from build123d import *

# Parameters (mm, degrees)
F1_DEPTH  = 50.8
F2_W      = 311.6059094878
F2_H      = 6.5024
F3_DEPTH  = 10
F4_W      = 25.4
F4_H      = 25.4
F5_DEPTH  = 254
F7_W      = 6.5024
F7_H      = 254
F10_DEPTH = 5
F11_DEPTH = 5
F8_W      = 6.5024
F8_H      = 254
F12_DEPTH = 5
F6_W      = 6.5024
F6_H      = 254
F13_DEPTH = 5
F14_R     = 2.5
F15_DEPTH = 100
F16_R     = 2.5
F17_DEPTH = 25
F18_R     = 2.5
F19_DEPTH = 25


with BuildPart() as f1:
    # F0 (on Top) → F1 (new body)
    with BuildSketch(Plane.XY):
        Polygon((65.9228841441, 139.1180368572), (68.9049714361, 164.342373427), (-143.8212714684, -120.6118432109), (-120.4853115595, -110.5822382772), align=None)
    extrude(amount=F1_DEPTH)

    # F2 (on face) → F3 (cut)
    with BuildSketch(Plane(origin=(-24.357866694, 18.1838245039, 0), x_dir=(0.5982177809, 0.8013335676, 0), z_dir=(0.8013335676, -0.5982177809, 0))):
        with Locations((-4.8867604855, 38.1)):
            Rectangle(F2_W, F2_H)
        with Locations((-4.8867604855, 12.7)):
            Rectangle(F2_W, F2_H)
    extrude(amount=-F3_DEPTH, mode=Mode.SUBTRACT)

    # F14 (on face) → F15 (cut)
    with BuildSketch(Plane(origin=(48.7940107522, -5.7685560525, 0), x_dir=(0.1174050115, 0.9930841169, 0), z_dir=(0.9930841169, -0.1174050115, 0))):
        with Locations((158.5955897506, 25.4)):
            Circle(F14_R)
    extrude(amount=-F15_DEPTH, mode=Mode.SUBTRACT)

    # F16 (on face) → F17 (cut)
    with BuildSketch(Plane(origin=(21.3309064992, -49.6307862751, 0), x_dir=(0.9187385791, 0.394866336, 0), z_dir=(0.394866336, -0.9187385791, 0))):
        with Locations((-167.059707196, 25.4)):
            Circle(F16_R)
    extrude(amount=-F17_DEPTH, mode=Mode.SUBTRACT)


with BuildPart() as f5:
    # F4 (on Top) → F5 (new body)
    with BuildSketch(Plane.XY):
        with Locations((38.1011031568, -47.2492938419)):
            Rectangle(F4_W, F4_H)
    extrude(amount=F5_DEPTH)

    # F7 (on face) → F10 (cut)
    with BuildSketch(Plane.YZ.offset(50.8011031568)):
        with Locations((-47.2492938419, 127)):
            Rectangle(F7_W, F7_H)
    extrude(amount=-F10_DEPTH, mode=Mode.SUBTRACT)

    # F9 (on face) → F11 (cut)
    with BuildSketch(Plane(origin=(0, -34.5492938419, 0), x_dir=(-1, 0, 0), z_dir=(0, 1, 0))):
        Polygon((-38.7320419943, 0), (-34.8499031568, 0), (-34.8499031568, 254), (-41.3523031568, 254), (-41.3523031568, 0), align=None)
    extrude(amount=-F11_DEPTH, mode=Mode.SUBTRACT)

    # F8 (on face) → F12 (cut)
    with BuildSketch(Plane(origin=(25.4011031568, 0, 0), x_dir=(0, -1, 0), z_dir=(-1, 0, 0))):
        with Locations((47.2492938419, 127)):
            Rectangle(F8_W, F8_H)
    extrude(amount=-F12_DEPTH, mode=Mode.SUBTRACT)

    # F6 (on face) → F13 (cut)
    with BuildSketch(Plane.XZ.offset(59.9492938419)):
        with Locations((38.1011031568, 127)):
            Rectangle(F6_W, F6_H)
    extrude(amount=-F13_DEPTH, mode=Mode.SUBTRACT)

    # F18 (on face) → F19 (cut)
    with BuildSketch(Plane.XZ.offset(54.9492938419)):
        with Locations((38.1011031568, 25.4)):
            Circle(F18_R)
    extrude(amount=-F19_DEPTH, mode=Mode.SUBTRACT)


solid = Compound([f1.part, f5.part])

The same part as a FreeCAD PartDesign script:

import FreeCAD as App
import Part
import Sketcher
Q = App.Units.Quantity

doc = App.newDocument("Part")
body = doc.addObject("PartDesign::Body", "Body")

# Sketch on XY plane
sketch1 = doc.addObject("Sketcher::SketchObject", "Sketch")
body.addObject(sketch1)
sketch1.AttachmentSupport = (doc.XY_Plane, [""])
sketch1.MapMode = "FlatFace"
sketch1.addGeometry(Part.LineSegment(App.Vector(66, 139, 0), App.Vector(69, 164, 0)), False)
sketch1.addGeometry(Part.LineSegment(App.Vector(69, 164, 0), App.Vector(-144, -121, 0)), False)
sketch1.addGeometry(Part.LineSegment(App.Vector(-144, -121, 0), App.Vector(-120, -111, 0)), False)
sketch1.addGeometry(Part.LineSegment(App.Vector(-120, -111, 0), App.Vector(66, 139, 0)), False)
sketch1.addConstraint(Sketcher.Constraint("Coincident", 0, 2, 1, 1))
sketch1.addConstraint(Sketcher.Constraint("Coincident", 1, 2, 2, 1))
sketch1.addConstraint(Sketcher.Constraint("Coincident", 2, 2, 3, 1))
sketch1.addConstraint(Sketcher.Constraint("Coincident", 3, 2, 0, 1))
sketch1.addConstraint(Sketcher.Constraint("Parallel", 1, 3))
sketch1.addConstraint(Sketcher.Constraint("Equal", 0, 2))
sketch1.addConstraint(Sketcher.Constraint("Distance", 0, Q("1 in")))
sketch1.addConstraint(Sketcher.Constraint("Distance", 1, Q("14 in")))
sketch1.addConstraint(Sketcher.Constraint("Distance", 3, 311.605909))
sketch1.addConstraint(Sketcher.Constraint("DistanceX", -1, 1, 0, 2, 68.904971))
sketch1.addConstraint(Sketcher.Constraint("DistanceX", 1, 2, -1, 1, 143.821271))
sketch1.addConstraint(Sketcher.Constraint("DistanceY", 2, 2, -1, 1, 110.582238))
pad1 = doc.addObject("PartDesign::Pad", "Pad")
body.addObject(pad1)
pad1.Profile = sketch1
pad1.Length = Q("2 in")

# Sketch on an angled plane
sketch2 = doc.addObject("Sketcher::SketchObject", "Sketch001")
body.addObject(sketch2)
sketch2.Placement = App.Placement(App.Vector(-24.357867, 18.183825, 0), App.Rotation(App.Vector(0.598217781, 0.801333568, 0), App.Vector(0, 0, 1.000000001), App.Vector(0.801333568, -0.598217781, 0), "ZXY"))
sketch2.addGeometry(Part.LineSegment(App.Vector(-161, 41, 0), App.Vector(-161, 35, 0)), False)
sketch2.addGeometry(Part.LineSegment(App.Vector(-161, 35, 0), App.Vector(151, 35, 0)), False)
sketch2.addGeometry(Part.LineSegment(App.Vector(151, 35, 0), App.Vector(151, 41, 0)), False)
sketch2.addGeometry(Part.LineSegment(App.Vector(151, 41, 0), App.Vector(-161, 41, 0)), False)
sketch2.addGeometry(Part.LineSegment(App.Vector(-161, 16, 0), App.Vector(-161, 9, 0)), False)
sketch2.addGeometry(Part.LineSegment(App.Vector(-161, 9, 0), App.Vector(151, 9, 0)), False)
sketch2.addGeometry(Part.LineSegment(App.Vector(151, 9, 0), App.Vector(151, 16, 0)), False)
sketch2.addGeometry(Part.LineSegment(App.Vector(151, 16, 0), App.Vector(-161, 16, 0)), False)
sketch2.addConstraint(Sketcher.Constraint("Coincident", 0, 2, 1, 1))
sketch2.addConstraint(Sketcher.Constraint("Coincident", 1, 2, 2, 1))
sketch2.addConstraint(Sketcher.Constraint("Coincident", 2, 2, 3, 1))
sketch2.addConstraint(Sketcher.Constraint("Coincident", 3, 2, 0, 1))
sketch2.addConstraint(Sketcher.Constraint("Coincident", 4, 2, 5, 1))
sketch2.addConstraint(Sketcher.Constraint("Coincident", 5, 2, 6, 1))
sketch2.addConstraint(Sketcher.Constraint("Coincident", 6, 2, 7, 1))
sketch2.addConstraint(Sketcher.Constraint("Coincident", 7, 2, 4, 1))
sketch2.addConstraint(Sketcher.Constraint("Vertical", 0))
sketch2.addConstraint(Sketcher.Constraint("Horizontal", 1))
sketch2.addConstraint(Sketcher.Constraint("Vertical", 2))
sketch2.addConstraint(Sketcher.Constraint("Horizontal", 3))
sketch2.addConstraint(Sketcher.Constraint("Vertical", 4))
sketch2.addConstraint(Sketcher.Constraint("Horizontal", 5))
sketch2.addConstraint(Sketcher.Constraint("Vertical", 6))
sketch2.addConstraint(Sketcher.Constraint("Horizontal", 7))
sketch2.addConstraint(Sketcher.Constraint("Vertical", 3, 2, 4, 2))
sketch2.addConstraint(Sketcher.Constraint("Vertical", 2, 2, 5, 2))
sketch2.addConstraint(Sketcher.Constraint("Equal", 2, 4))
sketch2.addConstraint(Sketcher.Constraint("DistanceY", 4, 2, 0, 2, Q("1 in")))
sketch2.addConstraint(Sketcher.Constraint("DistanceY", 0, 2, 0, 1, Q("0.256 in")))
sketch2.addConstraint(Sketcher.Constraint("DistanceY", -1, 1, 0, 2, Q("1.372 in")))
sketch2.addConstraint(Sketcher.Constraint("DistanceX", 1, 1, 1, 2, 311.60591))
sketch2.addConstraint(Sketcher.Constraint("DistanceX", 0, 2, -1, 1, 160.689715))
pocket1 = doc.addObject("PartDesign::Pocket", "Pocket")
body.addObject(pocket1)
pocket1.Profile = sketch2
pocket1.Length = 10

# Sketch on an angled plane
sketch3 = doc.addObject("Sketcher::SketchObject", "Sketch002")
body.addObject(sketch3)
sketch3.Placement = App.Placement(App.Vector(48.794011, -5.768556, 0), App.Rotation(App.Vector(0.117405012, 0.993084117, 0), App.Vector(0, 0, 1), App.Vector(0.993084117, -0.117405012, 0), "ZXY"))
sketch3.addGeometry(Part.Circle(App.Vector(158.6, 25.4, 0), App.Vector(0, 0, 1), 2.5), False)
sketch3.addConstraint(Sketcher.Constraint("DistanceY", -1, 1, 0, 3, Q("1 in")))
sketch3.addConstraint(Sketcher.Constraint("Diameter", 0, 5.0))
sketch3.addConstraint(Sketcher.Constraint("DistanceX", -1, 1, 0, 3, 158.59559))
pocket2 = doc.addObject("PartDesign::Pocket", "Pocket001")
body.addObject(pocket2)
pocket2.Profile = sketch3
pocket2.Length = 100

# Sketch on an angled plane
sketch4 = doc.addObject("Sketcher::SketchObject", "Sketch003")
body.addObject(sketch4)
sketch4.Placement = App.Placement(App.Vector(21.330906, -49.630786, 0), App.Rotation(App.Vector(0.918738579, 0.394866336, 0), App.Vector(0, 0, 1), App.Vector(0.394866336, -0.918738579, 0), "ZXY"))
sketch4.addGeometry(Part.Circle(App.Vector(-167.1, 25.4, 0), App.Vector(0, 0, 1), 2.5), False)
sketch4.addConstraint(Sketcher.Constraint("DistanceY", -1, 1, 0, 3, Q("1 in")))
sketch4.addConstraint(Sketcher.Constraint("Diameter", 0, 5.0))
sketch4.addConstraint(Sketcher.Constraint("DistanceX", 0, 3, -1, 1, 167.059707))
pocket3 = doc.addObject("PartDesign::Pocket", "Pocket002")
body.addObject(pocket3)
pocket3.Profile = sketch4
pocket3.Length = 25
body2 = doc.addObject("PartDesign::Body", "Body001")

# Sketch on XY plane
sketch5 = doc.addObject("Sketcher::SketchObject", "Sketch004")
body2.addObject(sketch5)
sketch5.AttachmentSupport = (doc.getObject("XY_Plane001"), [""])
sketch5.MapMode = "FlatFace"
sketch5.addGeometry(Part.LineSegment(App.Vector(25, -35, 0), App.Vector(25, -60, 0)), False)
sketch5.addGeometry(Part.LineSegment(App.Vector(25, -60, 0), App.Vector(51, -60, 0)), False)
sketch5.addGeometry(Part.LineSegment(App.Vector(51, -60, 0), App.Vector(51, -35, 0)), False)
sketch5.addGeometry(Part.LineSegment(App.Vector(51, -35, 0), App.Vector(25, -35, 0)), False)
sketch5.addConstraint(Sketcher.Constraint("Coincident", 0, 2, 1, 1))
sketch5.addConstraint(Sketcher.Constraint("Coincident", 1, 2, 2, 1))
sketch5.addConstraint(Sketcher.Constraint("Coincident", 2, 2, 3, 1))
sketch5.addConstraint(Sketcher.Constraint("Coincident", 3, 2, 0, 1))
sketch5.addConstraint(Sketcher.Constraint("Vertical", 0))
sketch5.addConstraint(Sketcher.Constraint("Horizontal", 1))
sketch5.addConstraint(Sketcher.Constraint("Vertical", 2))
sketch5.addConstraint(Sketcher.Constraint("Horizontal", 3))
sketch5.addConstraint(Sketcher.Constraint("Equal", 3, 0))
sketch5.addConstraint(Sketcher.Constraint("DistanceX", 1, 1, 1, 2, Q("1 in")))
sketch5.addConstraint(Sketcher.Constraint("DistanceX", -1, 1, 0, 2, 25.401103))
sketch5.addConstraint(Sketcher.Constraint("DistanceY", 0, 2, -1, 1, 59.949294))
pad2 = doc.addObject("PartDesign::Pad", "Pad001")
body2.addObject(pad2)
pad2.Profile = sketch5
pad2.Length = Q("10 in")

# Sketch on YZ plane
sketch6 = doc.addObject("Sketcher::SketchObject", "Sketch005")
body2.addObject(sketch6)
sketch6.AttachmentSupport = (doc.getObject("YZ_Plane001"), [""])
sketch6.MapMode = "FlatFace"
sketch6.AttachmentOffset = App.Placement(App.Vector(0, 0, 50.801103), App.Rotation())
sketch6.addGeometry(Part.LineSegment(App.Vector(-51, 254, 0), App.Vector(-51, 0, 0)), False)
sketch6.addGeometry(Part.LineSegment(App.Vector(-51, 0, 0), App.Vector(-44, 0, 0)), False)
sketch6.addGeometry(Part.LineSegment(App.Vector(-44, 0, 0), App.Vector(-44, 254, 0)), False)
sketch6.addGeometry(Part.LineSegment(App.Vector(-44, 254, 0), App.Vector(-51, 254, 0)), False)
sketch6.addConstraint(Sketcher.Constraint("Coincident", 0, 2, 1, 1))
sketch6.addConstraint(Sketcher.Constraint("Coincident", 1, 2, 2, 1))
sketch6.addConstraint(Sketcher.Constraint("Coincident", 2, 2, 3, 1))
sketch6.addConstraint(Sketcher.Constraint("Coincident", 3, 2, 0, 1))
sketch6.addConstraint(Sketcher.Constraint("Vertical", 0))
sketch6.addConstraint(Sketcher.Constraint("Horizontal", 1))
sketch6.addConstraint(Sketcher.Constraint("Vertical", 2))
sketch6.addConstraint(Sketcher.Constraint("Horizontal", 3))
sketch6.addConstraint(Sketcher.Constraint("PointOnObject", 0, 2, -1))
sketch6.addConstraint(Sketcher.Constraint("DistanceY", 0, 2, 0, 1, Q("10 in")))
sketch6.addConstraint(Sketcher.Constraint("DistanceX", 1, 1, 1, 2, Q("0.256 in")))
sketch6.addConstraint(Sketcher.Constraint("DistanceX", 0, 2, -1, 1, 50.500494))
pocket4 = doc.addObject("PartDesign::Pocket", "Pocket003")
body2.addObject(pocket4)
pocket4.Profile = sketch6
pocket4.Length = 5

# Sketch on XZ plane
sketch7 = doc.addObject("Sketcher::SketchObject", "Sketch006")
body2.addObject(sketch7)
sketch7.AttachmentSupport = (doc.getObject("XZ_Plane001"), [""])
sketch7.MapMode = "FlatFace"
sketch7.AttachmentOffset = App.Placement(App.Vector(0, 0, 34.549294), App.Rotation())
sketch7.addGeometry(Part.LineSegment(App.Vector(35, 0, 0), App.Vector(35, 254, 0)), False)
sketch7.addGeometry(Part.LineSegment(App.Vector(35, 254, 0), App.Vector(41, 254, 0)), False)
sketch7.addGeometry(Part.LineSegment(App.Vector(41, 254, 0), App.Vector(41, 0, 0)), False)
sketch7.addGeometry(Part.LineSegment(App.Vector(41, 0, 0), App.Vector(35, 0, 0)), False)
sketch7.addConstraint(Sketcher.Constraint("Coincident", 0, 2, 1, 1))
sketch7.addConstraint(Sketcher.Constraint("Coincident", 1, 2, 2, 1))
sketch7.addConstraint(Sketcher.Constraint("Coincident", 2, 2, 3, 1))
sketch7.addConstraint(Sketcher.Constraint("Coincident", 3, 2, 0, 1))
sketch7.addConstraint(Sketcher.Constraint("Vertical", 0))
sketch7.addConstraint(Sketcher.Constraint("Horizontal", 1))
sketch7.addConstraint(Sketcher.Constraint("Vertical", 2))
sketch7.addConstraint(Sketcher.Constraint("Horizontal", 3))
sketch7.addConstraint(Sketcher.Constraint("PointOnObject", 2, 2, -1))
sketch7.addConstraint(Sketcher.Constraint("DistanceY", 0, 1, 0, 2, Q("10 in")))
sketch7.addConstraint(Sketcher.Constraint("DistanceX", 1, 1, 1, 2, Q("0.256 in")))
sketch7.addConstraint(Sketcher.Constraint("DistanceX", -1, 1, 0, 2, 34.849903))
pocket5 = doc.addObject("PartDesign::Pocket", "Pocket004")
body2.addObject(pocket5)
pocket5.Profile = sketch7
pocket5.Length = 5
pocket5.Reversed = True

# Sketch on YZ plane
sketch8 = doc.addObject("Sketcher::SketchObject", "Sketch007")
body2.addObject(sketch8)
sketch8.AttachmentSupport = (doc.getObject("YZ_Plane001"), [""])
sketch8.MapMode = "FlatFace"
sketch8.AttachmentOffset = App.Placement(App.Vector(0, 0, 25.401103), App.Rotation())
sketch8.addGeometry(Part.LineSegment(App.Vector(-44, 254, 0), App.Vector(-44, 0, 0)), False)
sketch8.addGeometry(Part.LineSegment(App.Vector(-44, 0, 0), App.Vector(-51, 0, 0)), False)
sketch8.addGeometry(Part.LineSegment(App.Vector(-51, 0, 0), App.Vector(-51, 254, 0)), False)
sketch8.addGeometry(Part.LineSegment(App.Vector(-51, 254, 0), App.Vector(-44, 254, 0)), False)
sketch8.addConstraint(Sketcher.Constraint("Coincident", 0, 2, 1, 1))
sketch8.addConstraint(Sketcher.Constraint("Coincident", 1, 2, 2, 1))
sketch8.addConstraint(Sketcher.Constraint("Coincident", 2, 2, 3, 1))
sketch8.addConstraint(Sketcher.Constraint("Coincident", 3, 2, 0, 1))
sketch8.addConstraint(Sketcher.Constraint("Vertical", 0))
sketch8.addConstraint(Sketcher.Constraint("Horizontal", 1))
sketch8.addConstraint(Sketcher.Constraint("Vertical", 2))
sketch8.addConstraint(Sketcher.Constraint("Horizontal", 3))
sketch8.addConstraint(Sketcher.Constraint("PointOnObject", 0, 2, -1))
sketch8.addConstraint(Sketcher.Constraint("DistanceY", 0, 2, 0, 1, Q("10 in")))
sketch8.addConstraint(Sketcher.Constraint("DistanceX", 1, 2, 1, 1, Q("0.256 in")))
sketch8.addConstraint(Sketcher.Constraint("DistanceX", 0, 2, -1, 1, 43.998094))
pocket6 = doc.addObject("PartDesign::Pocket", "Pocket005")
body2.addObject(pocket6)
pocket6.Profile = sketch8
pocket6.Length = 5
pocket6.Reversed = True

# Sketch on XZ plane
sketch9 = doc.addObject("Sketcher::SketchObject", "Sketch008")
body2.addObject(sketch9)
sketch9.AttachmentSupport = (doc.getObject("XZ_Plane001"), [""])
sketch9.MapMode = "FlatFace"
sketch9.AttachmentOffset = App.Placement(App.Vector(0, 0, 59.949294), App.Rotation())
sketch9.addGeometry(Part.LineSegment(App.Vector(35, 254, 0), App.Vector(35, 0, 0)), False)
sketch9.addGeometry(Part.LineSegment(App.Vector(35, 0, 0), App.Vector(41, 0, 0)), False)
sketch9.addGeometry(Part.LineSegment(App.Vector(41, 0, 0), App.Vector(41, 254, 0)), False)
sketch9.addGeometry(Part.LineSegment(App.Vector(41, 254, 0), App.Vector(35, 254, 0)), False)
sketch9.addConstraint(Sketcher.Constraint("Coincident", 0, 2, 1, 1))
sketch9.addConstraint(Sketcher.Constraint("Coincident", 1, 2, 2, 1))
sketch9.addConstraint(Sketcher.Constraint("Coincident", 2, 2, 3, 1))
sketch9.addConstraint(Sketcher.Constraint("Coincident", 3, 2, 0, 1))
sketch9.addConstraint(Sketcher.Constraint("Vertical", 0))
sketch9.addConstraint(Sketcher.Constraint("Horizontal", 1))
sketch9.addConstraint(Sketcher.Constraint("Vertical", 2))
sketch9.addConstraint(Sketcher.Constraint("Horizontal", 3))
sketch9.addConstraint(Sketcher.Constraint("PointOnObject", 0, 2, -1))
sketch9.addConstraint(Sketcher.Constraint("DistanceY", 0, 2, 0, 1, Q("10 in")))
sketch9.addConstraint(Sketcher.Constraint("DistanceX", 1, 1, 1, 2, Q("0.256 in")))
sketch9.addConstraint(Sketcher.Constraint("DistanceX", -1, 1, 0, 2, 34.849903))
pocket7 = doc.addObject("PartDesign::Pocket", "Pocket006")
body2.addObject(pocket7)
pocket7.Profile = sketch9
pocket7.Length = 5

# Sketch on XZ plane
sketch10 = doc.addObject("Sketcher::SketchObject", "Sketch009")
body2.addObject(sketch10)
sketch10.AttachmentSupport = (doc.getObject("XZ_Plane001"), [""])
sketch10.MapMode = "FlatFace"
sketch10.AttachmentOffset = App.Placement(App.Vector(0, 0, 54.949294), App.Rotation())
sketch10.addGeometry(Part.Circle(App.Vector(38.1, 25.4, 0), App.Vector(0, 0, 1), 2.5), False)
sketch10.addConstraint(Sketcher.Constraint("DistanceY", -1, 1, 0, 3, Q("1 in")))
sketch10.addConstraint(Sketcher.Constraint("Diameter", 0, 5.0))
sketch10.addConstraint(Sketcher.Constraint("DistanceX", -1, 1, 0, 3, 38.101103))
pocket8 = doc.addObject("PartDesign::Pocket", "Pocket007")
body2.addObject(pocket8)
pocket8.Profile = sketch10
pocket8.Length = 25

doc.recompute()
